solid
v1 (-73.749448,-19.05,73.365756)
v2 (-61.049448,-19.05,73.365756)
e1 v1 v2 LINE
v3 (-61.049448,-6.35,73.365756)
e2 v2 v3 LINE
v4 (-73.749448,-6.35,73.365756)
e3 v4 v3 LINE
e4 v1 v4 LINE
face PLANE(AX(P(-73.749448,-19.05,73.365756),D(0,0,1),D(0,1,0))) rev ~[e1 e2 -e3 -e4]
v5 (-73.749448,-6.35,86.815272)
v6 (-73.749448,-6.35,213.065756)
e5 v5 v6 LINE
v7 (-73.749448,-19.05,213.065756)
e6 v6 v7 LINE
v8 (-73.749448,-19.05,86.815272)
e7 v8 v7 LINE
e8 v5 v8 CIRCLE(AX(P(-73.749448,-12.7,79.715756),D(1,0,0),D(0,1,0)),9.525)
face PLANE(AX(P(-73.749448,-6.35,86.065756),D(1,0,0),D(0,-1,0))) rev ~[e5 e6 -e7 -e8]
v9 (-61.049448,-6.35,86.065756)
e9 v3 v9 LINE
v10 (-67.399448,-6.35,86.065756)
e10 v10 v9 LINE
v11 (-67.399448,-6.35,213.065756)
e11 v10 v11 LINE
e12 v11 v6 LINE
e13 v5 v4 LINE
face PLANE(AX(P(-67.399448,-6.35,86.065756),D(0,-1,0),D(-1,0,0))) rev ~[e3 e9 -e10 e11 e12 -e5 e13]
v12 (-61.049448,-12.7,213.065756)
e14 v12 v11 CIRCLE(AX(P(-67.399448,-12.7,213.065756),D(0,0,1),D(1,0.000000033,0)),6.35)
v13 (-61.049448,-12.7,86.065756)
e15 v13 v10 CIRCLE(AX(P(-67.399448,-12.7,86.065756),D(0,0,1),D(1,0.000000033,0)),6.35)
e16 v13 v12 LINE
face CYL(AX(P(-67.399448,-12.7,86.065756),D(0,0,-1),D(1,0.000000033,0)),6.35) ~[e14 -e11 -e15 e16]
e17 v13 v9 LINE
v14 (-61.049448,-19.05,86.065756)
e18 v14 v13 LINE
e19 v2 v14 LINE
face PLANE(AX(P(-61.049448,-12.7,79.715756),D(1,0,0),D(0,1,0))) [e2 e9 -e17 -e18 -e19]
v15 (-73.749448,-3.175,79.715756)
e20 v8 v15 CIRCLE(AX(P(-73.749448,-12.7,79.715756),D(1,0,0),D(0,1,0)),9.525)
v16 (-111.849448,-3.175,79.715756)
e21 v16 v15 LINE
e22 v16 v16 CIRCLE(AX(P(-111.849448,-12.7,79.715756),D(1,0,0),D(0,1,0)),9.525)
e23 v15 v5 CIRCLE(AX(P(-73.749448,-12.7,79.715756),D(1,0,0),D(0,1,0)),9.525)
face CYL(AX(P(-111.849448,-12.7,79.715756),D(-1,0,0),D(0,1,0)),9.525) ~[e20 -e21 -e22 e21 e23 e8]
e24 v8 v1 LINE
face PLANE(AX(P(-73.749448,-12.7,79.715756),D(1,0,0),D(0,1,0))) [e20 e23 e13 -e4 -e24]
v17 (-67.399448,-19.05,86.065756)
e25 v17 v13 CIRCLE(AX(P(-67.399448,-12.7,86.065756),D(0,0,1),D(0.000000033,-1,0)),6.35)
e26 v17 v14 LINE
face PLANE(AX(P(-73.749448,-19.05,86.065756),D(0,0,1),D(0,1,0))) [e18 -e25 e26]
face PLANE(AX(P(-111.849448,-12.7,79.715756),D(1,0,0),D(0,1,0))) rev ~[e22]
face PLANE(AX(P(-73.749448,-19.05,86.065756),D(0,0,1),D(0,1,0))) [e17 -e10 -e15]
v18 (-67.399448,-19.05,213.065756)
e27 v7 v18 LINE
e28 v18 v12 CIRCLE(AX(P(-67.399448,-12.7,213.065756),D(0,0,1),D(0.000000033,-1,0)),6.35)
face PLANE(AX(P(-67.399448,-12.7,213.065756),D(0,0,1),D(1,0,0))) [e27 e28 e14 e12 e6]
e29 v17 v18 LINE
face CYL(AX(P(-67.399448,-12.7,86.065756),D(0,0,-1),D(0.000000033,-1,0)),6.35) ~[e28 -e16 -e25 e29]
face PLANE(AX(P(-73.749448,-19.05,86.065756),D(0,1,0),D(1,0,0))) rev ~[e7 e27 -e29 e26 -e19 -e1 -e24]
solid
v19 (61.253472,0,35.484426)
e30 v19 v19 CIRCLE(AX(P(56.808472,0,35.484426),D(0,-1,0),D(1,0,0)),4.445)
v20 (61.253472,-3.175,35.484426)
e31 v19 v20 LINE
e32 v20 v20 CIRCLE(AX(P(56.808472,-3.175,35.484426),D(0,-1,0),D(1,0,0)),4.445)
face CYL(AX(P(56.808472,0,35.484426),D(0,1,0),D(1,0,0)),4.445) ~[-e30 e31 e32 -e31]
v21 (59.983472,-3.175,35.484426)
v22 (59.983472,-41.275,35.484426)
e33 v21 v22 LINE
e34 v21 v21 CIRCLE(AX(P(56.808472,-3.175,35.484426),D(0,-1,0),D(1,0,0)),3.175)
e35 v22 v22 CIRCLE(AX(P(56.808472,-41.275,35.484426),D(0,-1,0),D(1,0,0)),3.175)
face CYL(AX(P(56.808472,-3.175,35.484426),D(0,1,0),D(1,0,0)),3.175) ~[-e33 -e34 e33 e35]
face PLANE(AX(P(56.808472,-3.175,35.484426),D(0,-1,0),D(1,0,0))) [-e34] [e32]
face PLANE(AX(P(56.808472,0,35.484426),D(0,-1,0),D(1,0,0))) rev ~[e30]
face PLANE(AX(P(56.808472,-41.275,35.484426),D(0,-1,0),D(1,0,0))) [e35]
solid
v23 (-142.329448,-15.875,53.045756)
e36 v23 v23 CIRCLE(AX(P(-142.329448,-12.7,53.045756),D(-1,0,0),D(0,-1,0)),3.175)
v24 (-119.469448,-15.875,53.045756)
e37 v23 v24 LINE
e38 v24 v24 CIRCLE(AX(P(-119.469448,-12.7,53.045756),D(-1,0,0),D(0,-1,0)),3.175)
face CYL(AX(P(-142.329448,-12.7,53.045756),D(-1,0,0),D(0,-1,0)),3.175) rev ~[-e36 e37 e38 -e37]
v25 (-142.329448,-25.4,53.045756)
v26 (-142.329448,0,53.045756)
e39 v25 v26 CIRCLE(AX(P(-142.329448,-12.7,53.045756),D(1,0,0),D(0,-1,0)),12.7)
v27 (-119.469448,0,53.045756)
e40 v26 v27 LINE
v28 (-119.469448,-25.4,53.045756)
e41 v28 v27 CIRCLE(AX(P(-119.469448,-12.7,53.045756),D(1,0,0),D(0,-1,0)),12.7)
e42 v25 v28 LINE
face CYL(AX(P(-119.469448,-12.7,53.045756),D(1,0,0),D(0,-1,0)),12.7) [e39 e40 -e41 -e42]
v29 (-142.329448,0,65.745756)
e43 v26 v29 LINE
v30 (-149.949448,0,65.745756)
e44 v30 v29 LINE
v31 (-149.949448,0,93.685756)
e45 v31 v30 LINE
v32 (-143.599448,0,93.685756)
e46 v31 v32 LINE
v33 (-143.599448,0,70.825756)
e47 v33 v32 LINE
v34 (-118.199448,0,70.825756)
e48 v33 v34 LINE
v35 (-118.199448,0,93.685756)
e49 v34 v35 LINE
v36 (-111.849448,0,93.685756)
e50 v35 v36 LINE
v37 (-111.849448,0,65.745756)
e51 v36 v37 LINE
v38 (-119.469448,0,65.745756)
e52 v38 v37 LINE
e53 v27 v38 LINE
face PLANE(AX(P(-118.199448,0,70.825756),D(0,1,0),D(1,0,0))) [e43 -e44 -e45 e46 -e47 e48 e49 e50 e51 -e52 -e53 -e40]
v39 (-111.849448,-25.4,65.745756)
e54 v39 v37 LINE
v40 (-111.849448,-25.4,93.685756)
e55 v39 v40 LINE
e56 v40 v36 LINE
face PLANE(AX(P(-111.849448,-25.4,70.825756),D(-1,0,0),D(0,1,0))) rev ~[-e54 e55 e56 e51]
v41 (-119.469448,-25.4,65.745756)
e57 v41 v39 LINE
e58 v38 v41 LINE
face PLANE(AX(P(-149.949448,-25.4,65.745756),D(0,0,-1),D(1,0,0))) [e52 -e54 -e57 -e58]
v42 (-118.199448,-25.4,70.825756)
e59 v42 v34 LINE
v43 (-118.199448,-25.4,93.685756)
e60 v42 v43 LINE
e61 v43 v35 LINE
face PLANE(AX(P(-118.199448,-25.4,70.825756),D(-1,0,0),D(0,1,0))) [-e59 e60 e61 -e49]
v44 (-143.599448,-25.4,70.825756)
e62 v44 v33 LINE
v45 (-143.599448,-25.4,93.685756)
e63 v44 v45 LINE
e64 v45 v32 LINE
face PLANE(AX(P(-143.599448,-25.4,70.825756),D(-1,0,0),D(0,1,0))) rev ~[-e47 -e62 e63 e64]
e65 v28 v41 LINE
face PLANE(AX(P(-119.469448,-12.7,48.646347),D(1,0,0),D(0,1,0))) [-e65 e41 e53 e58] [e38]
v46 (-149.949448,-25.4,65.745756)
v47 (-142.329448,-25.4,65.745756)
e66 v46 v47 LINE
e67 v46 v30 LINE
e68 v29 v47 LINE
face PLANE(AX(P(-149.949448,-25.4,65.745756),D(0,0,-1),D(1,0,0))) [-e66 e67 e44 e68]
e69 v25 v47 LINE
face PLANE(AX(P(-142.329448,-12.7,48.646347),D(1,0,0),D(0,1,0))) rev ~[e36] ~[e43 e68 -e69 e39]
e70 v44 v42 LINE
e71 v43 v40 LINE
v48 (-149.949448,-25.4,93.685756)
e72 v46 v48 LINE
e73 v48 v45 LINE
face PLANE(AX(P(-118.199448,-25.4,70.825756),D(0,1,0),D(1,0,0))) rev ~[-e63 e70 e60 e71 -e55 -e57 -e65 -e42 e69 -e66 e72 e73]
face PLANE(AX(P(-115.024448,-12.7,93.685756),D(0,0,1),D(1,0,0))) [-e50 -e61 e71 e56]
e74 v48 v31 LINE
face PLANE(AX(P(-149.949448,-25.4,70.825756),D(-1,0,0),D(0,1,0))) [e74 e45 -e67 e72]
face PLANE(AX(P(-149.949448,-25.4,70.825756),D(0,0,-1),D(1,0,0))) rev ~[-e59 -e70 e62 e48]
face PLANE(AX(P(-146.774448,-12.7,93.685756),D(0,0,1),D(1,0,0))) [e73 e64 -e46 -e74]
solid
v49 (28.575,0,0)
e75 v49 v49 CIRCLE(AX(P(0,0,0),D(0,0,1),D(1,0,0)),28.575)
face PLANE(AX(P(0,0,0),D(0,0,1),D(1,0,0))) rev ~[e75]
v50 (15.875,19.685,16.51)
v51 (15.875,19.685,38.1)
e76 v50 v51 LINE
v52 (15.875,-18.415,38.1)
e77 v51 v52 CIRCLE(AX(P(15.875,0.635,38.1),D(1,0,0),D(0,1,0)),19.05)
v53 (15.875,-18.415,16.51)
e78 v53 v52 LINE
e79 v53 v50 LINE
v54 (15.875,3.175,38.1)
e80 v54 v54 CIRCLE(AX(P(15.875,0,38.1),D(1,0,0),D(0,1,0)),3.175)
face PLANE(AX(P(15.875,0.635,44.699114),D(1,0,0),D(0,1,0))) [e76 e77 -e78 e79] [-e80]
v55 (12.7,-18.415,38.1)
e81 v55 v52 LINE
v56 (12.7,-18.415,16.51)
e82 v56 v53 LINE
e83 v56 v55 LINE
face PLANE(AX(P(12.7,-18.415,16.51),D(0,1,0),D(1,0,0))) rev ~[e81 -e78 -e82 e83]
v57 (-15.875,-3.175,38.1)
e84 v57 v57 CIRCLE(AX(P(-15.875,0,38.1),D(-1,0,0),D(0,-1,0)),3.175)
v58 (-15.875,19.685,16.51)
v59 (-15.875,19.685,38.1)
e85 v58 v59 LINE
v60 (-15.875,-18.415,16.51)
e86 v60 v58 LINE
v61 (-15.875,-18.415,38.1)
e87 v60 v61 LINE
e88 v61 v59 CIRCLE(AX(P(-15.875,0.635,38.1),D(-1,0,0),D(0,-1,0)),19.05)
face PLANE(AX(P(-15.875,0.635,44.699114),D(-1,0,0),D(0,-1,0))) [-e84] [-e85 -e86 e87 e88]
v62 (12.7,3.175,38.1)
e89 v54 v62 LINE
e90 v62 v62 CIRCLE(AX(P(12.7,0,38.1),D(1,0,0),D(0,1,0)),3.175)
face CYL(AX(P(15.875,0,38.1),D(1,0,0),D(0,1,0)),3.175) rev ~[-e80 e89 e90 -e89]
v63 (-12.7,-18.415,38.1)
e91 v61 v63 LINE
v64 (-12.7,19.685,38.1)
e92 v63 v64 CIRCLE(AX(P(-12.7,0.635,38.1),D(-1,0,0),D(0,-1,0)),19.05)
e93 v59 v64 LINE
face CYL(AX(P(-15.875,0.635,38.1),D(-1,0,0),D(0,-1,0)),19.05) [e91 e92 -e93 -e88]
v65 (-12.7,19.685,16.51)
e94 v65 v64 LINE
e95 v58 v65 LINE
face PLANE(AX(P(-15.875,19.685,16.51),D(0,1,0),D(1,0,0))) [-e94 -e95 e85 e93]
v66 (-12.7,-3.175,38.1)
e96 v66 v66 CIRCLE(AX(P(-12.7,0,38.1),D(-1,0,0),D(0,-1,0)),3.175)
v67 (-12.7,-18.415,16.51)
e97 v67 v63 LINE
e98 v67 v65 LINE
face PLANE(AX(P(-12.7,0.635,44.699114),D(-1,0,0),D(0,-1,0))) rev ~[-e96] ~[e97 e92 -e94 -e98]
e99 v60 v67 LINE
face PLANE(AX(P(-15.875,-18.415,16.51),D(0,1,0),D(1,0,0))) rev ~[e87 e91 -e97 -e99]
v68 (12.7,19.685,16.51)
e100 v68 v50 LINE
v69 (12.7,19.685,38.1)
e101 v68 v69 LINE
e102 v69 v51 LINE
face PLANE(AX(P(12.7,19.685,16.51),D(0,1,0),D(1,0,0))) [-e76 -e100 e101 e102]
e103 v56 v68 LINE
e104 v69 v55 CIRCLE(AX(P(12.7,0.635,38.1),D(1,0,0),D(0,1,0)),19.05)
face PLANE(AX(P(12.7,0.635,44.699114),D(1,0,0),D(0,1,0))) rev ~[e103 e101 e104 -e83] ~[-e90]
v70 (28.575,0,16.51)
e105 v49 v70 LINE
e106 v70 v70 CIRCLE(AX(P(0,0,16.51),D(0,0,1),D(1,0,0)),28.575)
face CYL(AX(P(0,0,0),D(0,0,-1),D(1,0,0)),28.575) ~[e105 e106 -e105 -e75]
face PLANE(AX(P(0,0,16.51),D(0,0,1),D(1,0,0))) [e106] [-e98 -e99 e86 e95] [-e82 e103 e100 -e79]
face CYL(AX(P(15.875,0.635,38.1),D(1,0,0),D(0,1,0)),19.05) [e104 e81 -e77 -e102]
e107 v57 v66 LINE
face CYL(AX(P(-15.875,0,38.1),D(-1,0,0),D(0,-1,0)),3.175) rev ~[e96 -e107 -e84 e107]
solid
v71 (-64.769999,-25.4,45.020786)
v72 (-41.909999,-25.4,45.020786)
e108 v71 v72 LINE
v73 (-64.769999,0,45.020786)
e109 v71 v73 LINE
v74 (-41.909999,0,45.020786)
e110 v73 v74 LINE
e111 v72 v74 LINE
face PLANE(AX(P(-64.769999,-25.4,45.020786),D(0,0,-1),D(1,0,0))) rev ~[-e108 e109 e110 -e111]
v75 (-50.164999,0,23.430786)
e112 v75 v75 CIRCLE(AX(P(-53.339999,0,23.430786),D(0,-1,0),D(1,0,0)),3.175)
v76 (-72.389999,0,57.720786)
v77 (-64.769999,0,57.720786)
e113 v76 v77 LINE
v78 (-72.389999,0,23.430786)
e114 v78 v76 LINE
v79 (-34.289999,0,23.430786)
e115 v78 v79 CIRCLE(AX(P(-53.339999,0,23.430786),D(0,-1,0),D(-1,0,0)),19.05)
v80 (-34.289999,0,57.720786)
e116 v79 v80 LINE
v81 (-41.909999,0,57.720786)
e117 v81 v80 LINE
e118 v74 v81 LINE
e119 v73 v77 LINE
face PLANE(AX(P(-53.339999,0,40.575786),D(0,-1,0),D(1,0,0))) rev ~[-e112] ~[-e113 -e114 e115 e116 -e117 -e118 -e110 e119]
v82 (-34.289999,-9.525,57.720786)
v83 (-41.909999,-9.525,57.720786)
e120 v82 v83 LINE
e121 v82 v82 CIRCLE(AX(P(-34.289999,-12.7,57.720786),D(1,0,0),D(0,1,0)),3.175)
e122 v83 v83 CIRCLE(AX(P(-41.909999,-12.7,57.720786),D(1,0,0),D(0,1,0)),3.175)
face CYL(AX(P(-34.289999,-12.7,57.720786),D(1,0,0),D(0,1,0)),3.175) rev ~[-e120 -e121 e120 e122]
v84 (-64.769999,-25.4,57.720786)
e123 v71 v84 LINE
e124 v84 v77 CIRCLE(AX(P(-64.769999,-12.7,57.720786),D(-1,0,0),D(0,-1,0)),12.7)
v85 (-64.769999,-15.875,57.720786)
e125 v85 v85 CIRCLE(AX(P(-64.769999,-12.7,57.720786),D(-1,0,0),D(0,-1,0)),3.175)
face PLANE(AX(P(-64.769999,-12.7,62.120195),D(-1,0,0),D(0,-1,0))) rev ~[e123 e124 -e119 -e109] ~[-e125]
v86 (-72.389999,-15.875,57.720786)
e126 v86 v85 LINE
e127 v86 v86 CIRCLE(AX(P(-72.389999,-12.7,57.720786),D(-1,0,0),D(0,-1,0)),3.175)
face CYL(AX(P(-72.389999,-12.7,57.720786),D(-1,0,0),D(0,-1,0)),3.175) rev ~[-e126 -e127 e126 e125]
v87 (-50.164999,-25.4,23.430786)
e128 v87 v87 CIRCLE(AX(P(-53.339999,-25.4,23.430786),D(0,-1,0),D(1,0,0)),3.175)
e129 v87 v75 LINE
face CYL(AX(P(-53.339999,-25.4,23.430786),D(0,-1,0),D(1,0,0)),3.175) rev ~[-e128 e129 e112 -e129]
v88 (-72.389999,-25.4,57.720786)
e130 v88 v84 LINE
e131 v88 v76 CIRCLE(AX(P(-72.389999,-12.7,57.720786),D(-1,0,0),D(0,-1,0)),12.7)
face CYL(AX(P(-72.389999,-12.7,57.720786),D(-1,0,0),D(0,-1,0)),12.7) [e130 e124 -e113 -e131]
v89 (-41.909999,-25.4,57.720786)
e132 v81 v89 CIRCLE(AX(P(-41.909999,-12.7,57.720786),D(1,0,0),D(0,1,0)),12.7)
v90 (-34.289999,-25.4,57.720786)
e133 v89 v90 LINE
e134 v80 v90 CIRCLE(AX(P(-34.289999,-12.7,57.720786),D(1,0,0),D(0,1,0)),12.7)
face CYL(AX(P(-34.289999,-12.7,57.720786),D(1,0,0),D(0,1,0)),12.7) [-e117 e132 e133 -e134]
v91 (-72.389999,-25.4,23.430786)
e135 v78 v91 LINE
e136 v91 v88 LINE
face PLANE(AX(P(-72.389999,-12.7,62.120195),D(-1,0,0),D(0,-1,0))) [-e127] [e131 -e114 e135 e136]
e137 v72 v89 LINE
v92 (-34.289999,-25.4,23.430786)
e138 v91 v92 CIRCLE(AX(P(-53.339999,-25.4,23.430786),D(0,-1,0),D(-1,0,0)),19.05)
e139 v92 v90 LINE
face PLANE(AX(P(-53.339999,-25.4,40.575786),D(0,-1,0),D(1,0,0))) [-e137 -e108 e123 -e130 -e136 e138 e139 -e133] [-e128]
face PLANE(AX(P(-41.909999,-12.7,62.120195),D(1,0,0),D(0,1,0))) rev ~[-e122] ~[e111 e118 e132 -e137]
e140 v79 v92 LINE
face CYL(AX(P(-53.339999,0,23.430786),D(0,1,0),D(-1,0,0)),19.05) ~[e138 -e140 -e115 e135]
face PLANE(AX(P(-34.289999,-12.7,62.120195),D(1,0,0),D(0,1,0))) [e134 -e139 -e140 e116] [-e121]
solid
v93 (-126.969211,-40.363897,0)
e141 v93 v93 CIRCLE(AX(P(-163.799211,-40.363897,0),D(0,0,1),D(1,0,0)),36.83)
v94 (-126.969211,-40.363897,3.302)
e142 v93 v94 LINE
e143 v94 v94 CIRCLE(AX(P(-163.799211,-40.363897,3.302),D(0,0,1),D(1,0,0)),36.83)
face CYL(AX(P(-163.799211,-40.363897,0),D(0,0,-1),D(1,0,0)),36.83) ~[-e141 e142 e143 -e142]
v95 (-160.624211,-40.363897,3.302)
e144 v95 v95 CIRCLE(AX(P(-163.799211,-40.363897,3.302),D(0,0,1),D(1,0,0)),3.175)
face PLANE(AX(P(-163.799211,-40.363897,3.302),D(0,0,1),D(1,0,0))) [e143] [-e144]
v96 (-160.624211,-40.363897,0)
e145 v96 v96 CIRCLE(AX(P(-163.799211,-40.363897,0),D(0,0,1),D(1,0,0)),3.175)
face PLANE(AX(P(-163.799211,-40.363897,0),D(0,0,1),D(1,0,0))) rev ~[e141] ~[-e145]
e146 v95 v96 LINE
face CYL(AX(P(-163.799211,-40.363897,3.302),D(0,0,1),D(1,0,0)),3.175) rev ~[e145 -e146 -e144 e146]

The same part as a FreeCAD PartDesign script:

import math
import FreeCAD as App
import Part
import Sketcher
Q = App.Units.Quantity


def add_polygon(sketch, points):
    """Adds a closed chain of lines whose ends are joined by coincident constraints."""
    first, n = sketch.GeometryCount, len(points)
    for a, b in zip(points, points[1:] + points[:1]):
        sketch.addGeometry(Part.LineSegment(App.Vector(*a, 0), App.Vector(*b, 0)), False)
    for i in range(n):
        sketch.addConstraint(Sketcher.Constraint("Coincident", first + i, 2, first + (i + 1) % n, 1))

doc = App.newDocument("Part")
params = doc.addObject("Spreadsheet::Sheet", "Params")
for row, (alias, value) in enumerate([
    ("sketch1_diameter", "2.25 in"),
    ("pad1_length", "0.65 in"),
    ("sketch2_height", "1.5 in"),
    ("sketch2_width", "0.125 in"),
    ("pad2_length", "0.85 in"),
    ("sketch3_radius", "0.75 in"),
    ("pad3_length", "0.125 in"),
    ("sketch4_radius", "0.75 in"),
    ("pad4_length", "0.125 in"),
    ("sketch5_diameter", "0.25 in"),
    ("pocket1_length", "1 in"),
    ("sketch6_diameter", "0.25 in"),
    ("pocket2_length", "1 in"),
    ("sketch7_radius", "0.75 in"),
    ("sketch7_height", "1.35 in"),
    ("pad5_length", "1 in"),
    ("sketch8_diameter", "0.25 in"),
    ("pocket3_length", "1 in"),
    ("sketch9_width", "0.9 in"),
    ("sketch9_height", "0.5 in"),
    ("pocket4_length", "1 in"),
    ("sketch10_radius", "0.5 in"),
    ("pad6_length", "0.3 in"),
    ("sketch11_radius", "0.5 in"),
    ("pad7_length", "0.3 in"),
    ("sketch12_diameter", "0.25 in"),
    ("pocket5_length", "0.5 in"),
    ("sketch13_diameter", "0.25 in"),
    ("pocket6_length", "1 in"),
    ("sketch14_width", "0.9 in"),
    ("sketch14_height", "0.5 in"),
    ("pad8_length", "1 in"),
    ("sketch15_radius", "0.5 in"),
    ("pad9_length", "0.9 in"),
    ("sketch16_diameter", "0.25 in"),
    ("pocket7_length", "1 in"),
    ("sketch17_width", "1.5 in"),
    ("sketch17_height", "0.2 in"),
    ("pad10_length", "1 in"),
    ("sketch18_height", "1 in"),
    ("sketch18_width", "0.25 in"),
    ("pad11_length", "0.9 in"),
    ("sketch19_height", "1 in"),
    ("sketch19_width", "0.25 in"),
    ("pad12_length", "0.9 in"),
    ("sketch20_diameter", "2.9 in"),
    ("pad13_length", "0.13 in"),
    ("sketch21_diameter", "0.25 in"),
    ("pocket8_length", "1 in"),
    ("sketch22_diameter", "0.35 in"),
    ("pad14_length", "0.125 in"),
    ("sketch23_diameter", "0.25 in"),
    ("pad15_length", "1.5 in"),
    ("sketch24_diameter", "0.75 in"),
    ("pad16_length", "1.5 in"),
    ("sketch25_width", "0.5 in"),
    ("pad17_length", "0.5 in"),
    ("sketch26_radius", "0.25 in"),
    ("sketch26_width", "0.25 in"),
    ("pad18_length", "5 in"),
], start=1):
    params.set(f"A{row}", alias)
    params.set(f"B{row}", "=" + value)
    params.setAlias(f"B{row}", alias)

body = doc.addObject("PartDesign::Body", "Body")

# Sketch on XY plane
sketch1 = doc.addObject("Sketcher::SketchObject", "Sketch")
body.addObject(sketch1)
sketch1.AttachmentSupport = (doc.XY_Plane, [""])
sketch1.MapMode = "FlatFace"
sketch1.addGeometry(Part.Circle(App.Vector(0, 0, 0), App.Vector(0, 0, 1), 29), False)
sketch1.addConstraint([
    Sketcher.Constraint("Coincident", 0, 3, -1, 1),
    Sketcher.Constraint("Diameter", 0, Q("2.25 in")),
])
sketch1.setExpression("Constraints[1]", "Params.sketch1_diameter")
pad1 = doc.addObject("PartDesign::Pad", "Pad")
body.addObject(pad1)
pad1.Profile = sketch1
pad1.setExpression("Length", "Params.pad1_length")

# Sketch on XY plane
sketch2 = doc.addObject("Sketcher::SketchObject", "Sketch001")
body.addObject(sketch2)
sketch2.AttachmentSupport = (doc.XY_Plane, [""])
sketch2.MapMode = "FlatFace"
sketch2.AttachmentOffset = App.Placement(App.Vector(0, 0, 0.65 * 25.4), App.Rotation())
add_polygon(sketch2, [(-15.9, 19.7), (-15.9, -18.4), (-12.7, -18.4), (-12.7, 19.7)])  # lines 0-3
add_polygon(sketch2, [(12.7, 19.7), (12.7, -18.4), (15.9, -18.4), (15.9, 19.7)])  # lines 4-7
sketch2.addConstraint([
    Sketcher.Constraint("Vertical", 0),
    Sketcher.Constraint("Horizontal", 1),
    Sketcher.Constraint("Vertical", 2),
    Sketcher.Constraint("Horizontal", 3),
    Sketcher.Constraint("Vertical", 4),
    Sketcher.Constraint("Horizontal", 5),
    Sketcher.Constraint("Vertical", 6),
    Sketcher.Constraint("Horizontal", 7),
    Sketcher.Constraint("Symmetric", 1, 2, 4, 2, -2),
    Sketcher.Constraint("Symmetric", 3, 2, 6, 2, -2),
    Sketcher.Constraint("DistanceY", 0, 2, 0, 1, Q("1.5 in")),
    Sketcher.Constraint("DistanceX", 1, 2, 4, 2, Q("1 in")),
    Sketcher.Constraint("DistanceX", 1, 1, 1, 2, Q("0.125 in")),
    Sketcher.Constraint("DistanceY", 0, 2, -1, 1, Q("0.725 in")),
])
sketch2.setExpression("Constraints[18]", "Params.sketch2_height")
sketch2.setExpression("Constraints[20]", "Params.sketch2_width")
pad2 = doc.addObject("PartDesign::Pad", "Pad001")
body.addObject(pad2)
pad2.Profile = sketch2
pad2.setExpression("Length", "Params.pad2_length")

# Sketch on YZ plane
sketch3 = doc.addObject("Sketcher::SketchObject", "Sketch002")
body.addObject(sketch3)
sketch3.AttachmentSupport = (doc.YZ_Plane, [""])
sketch3.MapMode = "FlatFace"
sketch3.AttachmentOffset = App.Placement(App.Vector(0, 0, -0.625 * 25.4), App.Rotation())
sketch3.addGeometry([
    Part.LineSegment(App.Vector(20, 38, 0), App.Vector(-18, 38, 0)),
    Part.ArcOfCircle(Part.Circle(App.Vector(1, 38, 0), App.Vector(0, 0, 1), 19), math.radians(0), math.radians(180)),
], False)
sketch3.addConstraint([
    Sketcher.Constraint("Coincident", 0, 1, 1, 1),
    Sketcher.Constraint("Coincident", 1, 2, 0, 2),
    Sketcher.Constraint("Horizontal", 0),
    Sketcher.Constraint("Horizontal", 1, 3, 0, 1),
    Sketcher.Constraint("Radius", 1, Q("0.75 in")),
    Sketcher.Constraint("DistanceY", -1, 1, 1, 3, Q("1.5 in")),
    Sketcher.Constraint("DistanceX", -1, 1, 1, 3, Q("0.025 in")),
])
sketch3.setExpression("Constraints[4]", "Params.sketch3_radius")
pad3 = doc.addObject("PartDesign::Pad", "Pad002")
body.addObject(pad3)
pad3.Profile = sketch3
pad3.setExpression("Length", "Params.pad3_length")

# Sketch on YZ plane
sketch4 = doc.addObject("Sketcher::SketchObject", "Sketch003")
body.addObject(sketch4)
sketch4.AttachmentSupport = (doc.YZ_Plane, [""])
sketch4.MapMode = "FlatFace"
sketch4.AttachmentOffset = App.Placement(App.Vector(0, 0, 0.625 * 25.4), App.Rotation())
sketch4.addGeometry([
    Part.LineSegment(App.Vector(-18, 38, 0), App.Vector(20, 38, 0)),
    Part.ArcOfCircle(Part.Circle(App.Vector(1, 38, 0), App.Vector(0, 0, 1), 19), math.radians(0), math.radians(180)),
], False)
sketch4.addConstraint([
    Sketcher.Constraint("Coincident", 0, 1, 1, 2),
    Sketcher.Constraint("Coincident", 1, 1, 0, 2),
    Sketcher.Constraint("Horizontal", 0),
    Sketcher.Constraint("Horizontal", 1, 3, 0, 1),
    Sketcher.Constraint("Radius", 1, Q("0.75 in")),
    Sketcher.Constraint("DistanceY", -1, 1, 1, 3, Q("1.5 in")),
    Sketcher.Constraint("DistanceX", -1, 1, 1, 3, Q("0.025 in")),
])
sketch4.setExpression("Constraints[4]", "Params.sketch4_radius")
pad4 = doc.addObject("PartDesign::Pad", "Pad003")
body.addObject(pad4)
pad4.Profile = sketch4
pad4.setExpression("Length", "Params.pad4_length")
pad4.Reversed = True

# Sketch on YZ plane
sketch5 = doc.addObject("Sketcher::SketchObject", "Sketch004")
body.addObject(sketch5)
sketch5.AttachmentSupport = (doc.YZ_Plane, [""])
sketch5.MapMode = "FlatFace"
sketch5.AttachmentOffset = App.Placement(App.Vector(0, 0, -0.625 * 25.4), App.Rotation())
sketch5.addGeometry(Part.Circle(App.Vector(0, 38.1, 0), App.Vector(0, 0, 1), 3.2), False)
sketch5.addConstraint([
    Sketcher.Constraint("PointOnObject", 0, 3, -2),
    Sketcher.Constraint("Diameter", 0, Q("0.25 in")),
    Sketcher.Constraint("DistanceY", -1, 1, 0, 3, Q("1.5 in")),
])
sketch5.setExpression("Constraints[1]", "Params.sketch5_diameter")
pocket1 = doc.addObject("PartDesign::Pocket", "Pocket")
body.addObject(pocket1)
pocket1.Profile = sketch5
pocket1.setExpression("Length", "Params.pocket1_length")
pocket1.Reversed = True

# Sketch on YZ plane
sketch6 = doc.addObject("Sketcher::SketchObject", "Sketch005")
body.addObject(sketch6)
sketch6.AttachmentSupport = (doc.YZ_Plane, [""])
sketch6.MapMode = "FlatFace"
sketch6.AttachmentOffset = App.Placement(App.Vector(0, 0, 0.625 * 25.4), App.Rotation())
sketch6.addGeometry(Part.Circle(App.Vector(0, 38.1, 0), App.Vector(0, 0, 1), 3.2), False)
sketch6.addConstraint([
    Sketcher.Constraint("PointOnObject", 0, 3, -2),
    Sketcher.Constraint("Diameter", 0, Q("0.25 in")),
    Sketcher.Constraint("DistanceY", -1, 1, 0, 3, Q("1.5 in")),
])
sketch6.setExpression("Constraints[1]", "Params.sketch6_diameter")
pocket2 = doc.addObject("PartDesign::Pocket", "Pocket001")
body.addObject(pocket2)
pocket2.Profile = sketch6
pocket2.setExpression("Length", "Params.pocket2_length")
body2 = doc.addObject("PartDesign::Body", "Body001")

# Sketch on XZ plane
sketch7 = doc.addObject("Sketcher::SketchObject", "Sketch006")
body2.addObject(sketch7)
sketch7.AttachmentSupport = (doc.getObject("XZ_Plane001"), [""])
sketch7.MapMode = "FlatFace"
sketch7.addGeometry([
    Part.LineSegment(App.Vector(-72, 58, 0), App.Vector(-72, 23, 0)),
    Part.ArcOfCircle(Part.Circle(App.Vector(-53, 23, 0), App.Vector(0, 0, 1), 19), math.radians(180), math.radians(360)),
    Part.LineSegment(App.Vector(-34, 23, 0), App.Vector(-34, 58, 0)),
    Part.LineSegment(App.Vector(-34, 58, 0), App.Vector(-72, 58, 0)),
], False)
sketch7.addConstraint([
    Sketcher.Constraint("Tangent", 0, 2, 1, 1),
    Sketcher.Constraint("Tangent", 1, 2, 2, 1),
    Sketcher.Constraint("Coincident", 2, 2, 3, 1),
    Sketcher.Constraint("Coincident", 3, 2, 0, 1),
    Sketcher.Constraint("Vertical", 0),
    Sketcher.Constraint("Vertical", 2),
    Sketcher.Constraint("Horizontal", 3),
    Sketcher.Constraint("Radius", 1, Q("0.75 in")),
    Sketcher.Constraint("DistanceY", 0, 2, 0, 1, Q("1.35 in")),
    Sketcher.Constraint("DistanceX", 1, 3, -1, 1, Q("2.1 in")),
    Sketcher.Constraint("DistanceY", -1, 1, 1, 3, Q("23.430786 mm")),
])
sketch7.setExpression("Constraints[7]", "Params.sketch7_radius")
sketch7.setExpression("Constraints[8]", "Params.sketch7_height")
pad5 = doc.addObject("PartDesign::Pad", "Pad004")
body2.addObject(pad5)
pad5.Profile = sketch7
pad5.setExpression("Length", "Params.pad5_length")

# Sketch on XZ plane
sketch8 = doc.addObject("Sketcher::SketchObject", "Sketch007")
body2.addObject(sketch8)
sketch8.AttachmentSupport = (doc.getObject("XZ_Plane001"), [""])
sketch8.MapMode = "FlatFace"
sketch8.AttachmentOffset = App.Placement(App.Vector(0, 0, 1 * 25.4), App.Rotation())
sketch8.addGeometry(Part.Circle(App.Vector(-53.3, 23.4, 0), App.Vector(0, 0, 1), 3.2), False)
sketch8.addConstraint([
    Sketcher.Constraint("Diameter", 0, Q("0.25 in")),
    Sketcher.Constraint("DistanceX", 0, 3, -1, 1, Q("2.1 in")),
    Sketcher.Constraint("DistanceY", -1, 1, 0, 3, Q("23.430786 mm")),
])
sketch8.setExpression("Constraints[0]", "Params.sketch8_diameter")
pocket3 = doc.addObject("PartDesign::Pocket", "Pocket002")
body2.addObject(pocket3)
pocket3.Profile = sketch8
pocket3.setExpression("Length", "Params.pocket3_length")

# Sketch on XZ plane
sketch9 = doc.addObject("Sketcher::SketchObject", "Sketch008")
body2.addObject(sketch9)
sketch9.AttachmentSupport = (doc.getObject("XZ_Plane001"), [""])
sketch9.MapMode = "FlatFace"
sketch9.AttachmentOffset = App.Placement(App.Vector(0, 0, 1 * 25.4), App.Rotation())
add_polygon(sketch9, [(-65, 58), (-65, 45), (-42, 45), (-42, 58)])  # lines 0-3
sketch9.addConstraint([
    Sketcher.Constraint("Vertical", 0),
    Sketcher.Constraint("Horizontal", 1),
    Sketcher.Constraint("Vertical", 2),
    Sketcher.Constraint("Horizontal", 3),
    Sketcher.Constraint("DistanceX", 1, 1, 1, 2, Q("0.9 in")),
    Sketcher.Constraint("DistanceY", 0, 2, 0, 1, Q("0.5 in")),
    Sketcher.Constraint("DistanceX", 0, 2, -1, 1, Q("2.55 in")),
    Sketcher.Constraint("DistanceY", -1, 1, 0, 2, Q("45.020786 mm")),
])
sketch9.setExpression("Constraints[8]", "Params.sketch9_width")
sketch9.setExpression("Constraints[9]", "Params.sketch9_height")
pocket4 = doc.addObject("PartDesign::Pocket", "Pocket003")
body2.addObject(pocket4)
pocket4.Profile = sketch9
pocket4.setExpression("Length", "Params.pocket4_length")

# Sketch on YZ plane
sketch10 = doc.addObject("Sketcher::SketchObject", "Sketch009")
body2.addObject(sketch10)
sketch10.AttachmentSupport = (doc.getObject("YZ_Plane001"), [""])
sketch10.MapMode = "FlatFace"
sketch10.AttachmentOffset = App.Placement(App.Vector(0, 0, -2.85 * 25.4), App.Rotation())
sketch10.addGeometry([
    Part.LineSegment(App.Vector(0, 58, 0), App.Vector(-25, 58, 0)),
    Part.ArcOfCircle(Part.Circle(App.Vector(-13, 58, 0), App.Vector(0, 0, 1), 13), math.radians(0), math.radians(180)),
], False)
sketch10.addConstraint([
    Sketcher.Constraint("Coincident", 0, 1, 1, 1),
    Sketcher.Constraint("Coincident", 1, 2, 0, 2),
    Sketcher.Constraint("Horizontal", 0),
    Sketcher.Constraint("PointOnObject", 0, 1, -2),
    Sketcher.Constraint("Horizontal", 1, 3, 0, 1),
    Sketcher.Constraint("Radius", 1, Q("0.5 in")),
    Sketcher.Constraint("DistanceY", -1, 1, 1, 3, Q("57.720786 mm")),
])
sketch10.setExpression("Constraints[5]", "Params.sketch10_radius")
pad6 = doc.addObject("PartDesign::Pad", "Pad005")
body2.addObject(pad6)
pad6.Profile = sketch10
pad6.setExpression("Length", "Params.pad6_length")

# Sketch on YZ plane
sketch11 = doc.addObject("Sketcher::SketchObject", "Sketch010")
body2.addObject(sketch11)
sketch11.AttachmentSupport = (doc.getObject("YZ_Plane001"), [""])
sketch11.MapMode = "FlatFace"
sketch11.AttachmentOffset = App.Placement(App.Vector(0, 0, -1.35 * 25.4), App.Rotation())
sketch11.addGeometry([
    Part.LineSegment(App.Vector(-25, 58, 0), App.Vector(0, 58, 0)),
    Part.ArcOfCircle(Part.Circle(App.Vector(-13, 58, 0), App.Vector(0, 0, 1), 13), math.radians(0), math.radians(180)),
], False)
sketch11.addConstraint([
    Sketcher.Constraint("Coincident", 0, 1, 1, 2),
    Sketcher.Constraint("Coincident", 1, 1, 0, 2),
    Sketcher.Constraint("Horizontal", 0),
    Sketcher.Constraint("PointOnObject", 1, 1, -2),
    Sketcher.Constraint("Horizontal", 1, 3, 0, 1),
    Sketcher.Constraint("Radius", 1, Q("0.5 in")),
    Sketcher.Constraint("DistanceY", -1, 1, 1, 3, Q("57.720786 mm")),
])
sketch11.setExpression("Constraints[5]", "Params.sketch11_radius")
pad7 = doc.addObject("PartDesign::Pad", "Pad006")
body2.addObject(pad7)
pad7.Profile = sketch11
pad7.setExpression("Length", "Params.pad7_length")
pad7.Reversed = True

# Sketch on YZ plane
sketch12 = doc.addObject("Sketcher::SketchObject", "Sketch011")
body2.addObject(sketch12)
sketch12.AttachmentSupport = (doc.getObject("YZ_Plane001"), [""])
sketch12.MapMode = "FlatFace"
sketch12.AttachmentOffset = App.Placement(App.Vector(0, 0, -2.85 * 25.4), App.Rotation())
sketch12.addGeometry(Part.Circle(App.Vector(-12.7, 57.7, 0), App.Vector(0, 0, 1), 3.2), False)
sketch12.addConstraint([
    Sketcher.Constraint("Diameter", 0, Q("0.25 in")),
    Sketcher.Constraint("DistanceX", 0, 3, -1, 1, Q("0.5 in")),
    Sketcher.Constraint("DistanceY", -1, 1, 0, 3, Q("57.720786 mm")),
])
sketch12.setExpression("Constraints[0]", "Params.sketch12_diameter")
pocket5 = doc.addObject("PartDesign::Pocket", "Pocket004")
body2.addObject(pocket5)
pocket5.Profile = sketch12
pocket5.setExpression("Length", "Params.pocket5_length")
pocket5.Reversed = True

# Sketch on YZ plane
sketch13 = doc.addObject("Sketcher::SketchObject", "Sketch012")
body2.addObject(sketch13)
sketch13.AttachmentSupport = (doc.getObject("YZ_Plane001"), [""])
sketch13.MapMode = "FlatFace"
sketch13.AttachmentOffset = App.Placement(App.Vector(0, 0, -1.35 * 25.4), App.Rotation())
sketch13.addGeometry(Part.Circle(App.Vector(-12.7, 57.7, 0), App.Vector(0, 0, 1), 3.2), False)
sketch13.addConstraint([
    Sketcher.Constraint("Diameter", 0, Q("0.25 in")),
    Sketcher.Constraint("DistanceX", 0, 3, -1, 1, Q("0.5 in")),
    Sketcher.Constraint("DistanceY", -1, 1, 0, 3, Q("57.720786 mm")),
])
sketch13.setExpression("Constraints[0]", "Params.sketch13_diameter")
pocket6 = doc.addObject("PartDesign::Pocket", "Pocket005")
body2.addObject(pocket6)
pocket6.Profile = sketch13
pocket6.setExpression("Length", "Params.pocket6_length")
body3 = doc.addObject("PartDesign::Body", "Body002")

# Sketch on XZ plane
sketch14 = doc.addObject("Sketcher::SketchObject", "Sketch013")
body3.addObject(sketch14)
sketch14.AttachmentSupport = (doc.getObject("XZ_Plane002"), [""])
sketch14.MapMode = "FlatFace"
add_polygon(sketch14, [(-142, 66), (-142, 53), (-119, 53), (-119, 66)])  # lines 0-3
sketch14.addConstraint([
    Sketcher.Constraint("Vertical", 0),
    Sketcher.Constraint("Horizontal", 1),
    Sketcher.Constraint("Vertical", 2),
    Sketcher.Constraint("Horizontal", 3),
    Sketcher.Constraint("DistanceX", 1, 1, 1, 2, Q("0.9 in")),
    Sketcher.Constraint("DistanceY", 0, 2, 0, 1, Q("0.5 in")),
    Sketcher.Constraint("DistanceX", 0, 2, -1, 1, Q("142.329448 mm")),
    Sketcher.Constraint("DistanceY", -1, 1, 0, 2, Q("53.045756 mm")),
])
sketch14.setExpression("Constraints[8]", "Params.sketch14_width")
sketch14.setExpression("Constraints[9]", "Params.sketch14_height")
pad8 = doc.addObject("PartDesign::Pad", "Pad007")
body3.addObject(pad8)
pad8.Profile = sketch14
pad8.setExpression("Length", "Params.pad8_length")

# Sketch on YZ plane
sketch15 = doc.addObject("Sketcher::SketchObject", "Sketch014")
body3.addObject(sketch15)
sketch15.AttachmentSupport = (doc.getObject("YZ_Plane002"), [""])
sketch15.MapMode = "FlatFace"
sketch15.AttachmentOffset = App.Placement(App.Vector(0, 0, -119.469448), App.Rotation())
sketch15.addGeometry([
    Part.LineSegment(App.Vector(0, 53, 0), App.Vector(-25, 53, 0)),
    Part.ArcOfCircle(Part.Circle(App.Vector(-13, 53, 0), App.Vector(0, 0, 1), 13), math.radians(180), math.radians(360)),
], False)
sketch15.addConstraint([
    Sketcher.Constraint("Coincident", 0, 1, 1, 2),
    Sketcher.Constraint("Coincident", 1, 1, 0, 2),
    Sketcher.Constraint("Horizontal", 0),
    Sketcher.Constraint("PointOnObject", 0, 1, -2),
    Sketcher.Constraint("Horizontal", 1, 3, 0, 1),
    Sketcher.Constraint("Radius", 1, Q("0.5 in")),
    Sketcher.Constraint("DistanceY", -1, 1, 1, 3, Q("53.045756 mm")),
])
sketch15.setExpression("Constraints[5]", "Params.sketch15_radius")
pad9 = doc.addObject("PartDesign::Pad", "Pad008")
body3.addObject(pad9)
pad9.Profile = sketch15
pad9.setExpression("Length", "Params.pad9_length")
pad9.Reversed = True

# Sketch on YZ plane
sketch16 = doc.addObject("Sketcher::SketchObject", "Sketch015")
body3.addObject(sketch16)
sketch16.AttachmentSupport = (doc.getObject("YZ_Plane002"), [""])
sketch16.MapMode = "FlatFace"
sketch16.AttachmentOffset = App.Placement(App.Vector(0, 0, -142.329448), App.Rotation())
sketch16.addGeometry(Part.Circle(App.Vector(-12.7, 53, 0), App.Vector(0, 0, 1), 3.2), False)
sketch16.addConstraint([
    Sketcher.Constraint("Diameter", 0, Q("0.25 in")),
    Sketcher.Constraint("DistanceX", 0, 3, -1, 1, Q("0.5 in")),
    Sketcher.Constraint("DistanceY", -1, 1, 0, 3, Q("53.045756 mm")),
])
sketch16.setExpression("Constraints[0]", "Params.sketch16_diameter")
pocket7 = doc.addObject("PartDesign::Pocket", "Pocket006")
body3.addObject(pocket7)
pocket7.Profile = sketch16
pocket7.setExpression("Length", "Params.pocket7_length")
pocket7.Reversed = True

# Sketch on XZ plane
sketch17 = doc.addObject("Sketcher::SketchObject", "Sketch016")
body3.addObject(sketch17)
sketch17.AttachmentSupport = (doc.getObject("XZ_Plane002"), [""])
sketch17.MapMode = "FlatFace"
sketch17.AttachmentOffset = App.Placement(App.Vector(0, 0, 1 * 25.4), App.Rotation())
add_polygon(sketch17, [(-150, 71), (-150, 66), (-112, 66), (-112, 71)])  # lines 0-3
sketch17.addConstraint([
    Sketcher.Constraint("Vertical", 0),
    Sketcher.Constraint("Horizontal", 1),
    Sketcher.Constraint("Vertical", 2),
    Sketcher.Constraint("Horizontal", 3),
    Sketcher.Constraint("DistanceX", 1, 1, 1, 2, Q("1.5 in")),
    Sketcher.Constraint("DistanceY", 0, 2, 0, 1, Q("0.2 in")),
    Sketcher.Constraint("DistanceX", 0, 2, -1, 1, Q("149.949448 mm")),
    Sketcher.Constraint("DistanceY", -1, 1, 0, 2, Q("65.745756 mm")),
])
sketch17.setExpression("Constraints[8]", "Params.sketch17_width")
sketch17.setExpression("Constraints[9]", "Params.sketch17_height")
pad10 = doc.addObject("PartDesign::Pad", "Pad009")
body3.addObject(pad10)
pad10.Profile = sketch17
pad10.setExpression("Length", "Params.pad10_length")
pad10.Reversed = True

# Sketch on XY plane
sketch18 = doc.addObject("Sketcher::SketchObject", "Sketch017")
body3.addObject(sketch18)
sketch18.AttachmentSupport = (doc.getObject("XY_Plane002"), [""])
sketch18.MapMode = "FlatFace"
sketch18.AttachmentOffset = App.Placement(App.Vector(0, 0, 70.825756), App.Rotation())
add_polygon(sketch18, [(-150, 0), (-150, -25), (-144, -25), (-144, 0)])  # lines 0-3
sketch18.addConstraint([
    Sketcher.Constraint("Vertical", 0),
    Sketcher.Constraint("Horizontal", 1),
    Sketcher.Constraint("Vertical", 2),
    Sketcher.Constraint("Horizontal", 3),
    Sketcher.Constraint("PointOnObject", 2, 2, -1),
    Sketcher.Constraint("DistanceY", 0, 2, 0, 1, Q("1 in")),
    Sketcher.Constraint("DistanceX", 1, 1, 1, 2, Q("0.25 in")),
    Sketcher.Constraint("DistanceX", 1, 2, -1, 1, Q("143.599448 mm")),
])
sketch18.setExpression("Constraints[9]", "Params.sketch18_height")
sketch18.setExpression("Constraints[10]", "Params.sketch18_width")
pad11 = doc.addObject("PartDesign::Pad", "Pad010")
body3.addObject(pad11)
pad11.Profile = sketch18
pad11.setExpression("Length", "Params.pad11_length")

# Sketch on XY plane
sketch19 = doc.addObject("Sketcher::SketchObject", "Sketch018")
body3.addObject(sketch19)
sketch19.AttachmentSupport = (doc.getObject("XY_Plane002"), [""])
sketch19.MapMode = "FlatFace"
sketch19.AttachmentOffset = App.Placement(App.Vector(0, 0, 70.825756), App.Rotation())
add_polygon(sketch19, [(-118, 0), (-118, -25), (-112, -25), (-112, 0)])  # lines 0-3
sketch19.addConstraint([
    Sketcher.Constraint("Vertical", 0),
    Sketcher.Constraint("Horizontal", 1),
    Sketcher.Constraint("Vertical", 2),
    Sketcher.Constraint("Horizontal", 3),
    Sketcher.Constraint("PointOnObject", 2, 2, -1),
    Sketcher.Constraint("DistanceY", 0, 2, 0, 1, Q("1 in")),
    Sketcher.Constraint("DistanceX", 1, 1, 1, 2, Q("0.25 in")),
    Sketcher.Constraint("DistanceX", 0, 2, -1, 1, Q("118.199448 mm")),
])
sketch19.setExpression("Constraints[9]", "Params.sketch19_height")
sketch19.setExpression("Constraints[10]", "Params.sketch19_width")
pad12 = doc.addObject("PartDesign::Pad", "Pad011")
body3.addObject(pad12)
pad12.Profile = sketch19
pad12.setExpression("Length", "Params.pad12_length")
body4 = doc.addObject("PartDesign::Body", "Body003")

# Sketch on XY plane
sketch20 = doc.addObject("Sketcher::SketchObject", "Sketch019")
body4.addObject(sketch20)
sketch20.AttachmentSupport = (doc.getObject("XY_Plane003"), [""])
sketch20.MapMode = "FlatFace"
sketch20.addGeometry(Part.Circle(App.Vector(-164, -40, 0), App.Vector(0, 0, 1), 37), False)
sketch20.addConstraint([
    Sketcher.Constraint("Diameter", 0, Q("2.9 in")),
    Sketcher.Constraint("DistanceX", 0, 3, -1, 1, Q("163.799211 mm")),
    Sketcher.Constraint("DistanceY", 0, 3, -1, 1, Q("40.363897 mm")),
])
sketch20.setExpression("Constraints[0]", "Params.sketch20_diameter")
pad13 = doc.addObject("PartDesign::Pad", "Pad012")
body4.addObject(pad13)
pad13.Profile = sketch20
pad13.setExpression("Length", "Params.pad13_length")

# Sketch on XY plane
sketch21 = doc.addObject("Sketcher::SketchObject", "Sketch020")
body4.addObject(sketch21)
sketch21.AttachmentSupport = (doc.getObject("XY_Plane003"), [""])
sketch21.MapMode = "FlatFace"
sketch21.AttachmentOffset = App.Placement(App.Vector(0, 0, 0.13 * 25.4), App.Rotation())
sketch21.addGeometry(Part.Circle(App.Vector(-163.8, -40.4, 0), App.Vector(0, 0, 1), 3.2), False)
sketch21.addConstraint([
    Sketcher.Constraint("Diameter", 0, Q("0.25 in")),
    Sketcher.Constraint("DistanceX", 0, 3, -1, 1, Q("163.799211 mm")),
    Sketcher.Constraint("DistanceY", 0, 3, -1, 1, Q("40.363897 mm")),
])
sketch21.setExpression("Constraints[0]", "Params.sketch21_diameter")
pocket8 = doc.addObject("PartDesign::Pocket", "Pocket007")
body4.addObject(pocket8)
pocket8.Profile = sketch21
pocket8.setExpression("Length", "Params.pocket8_length")
body5 = doc.addObject("PartDesign::Body", "Body004")

# Sketch on XZ plane
sketch22 = doc.addObject("Sketcher::SketchObject", "Sketch021")
body5.addObject(sketch22)
sketch22.AttachmentSupport = (doc.getObject("XZ_Plane004"), [""])
sketch22.MapMode = "FlatFace"
sketch22.addGeometry(Part.Circle(App.Vector(56.8, 35.5, 0), App.Vector(0, 0, 1), 4.4), False)
sketch22.addConstraint([
    Sketcher.Constraint("Diameter", 0, Q("0.35 in")),
    Sketcher.Constraint("DistanceX", -1, 1, 0, 3, Q("56.808472 mm")),
    Sketcher.Constraint("DistanceY", -1, 1, 0, 3, Q("35.484426 mm")),
])
sketch22.setExpression("Constraints[0]", "Params.sketch22_diameter")
pad14 = doc.addObject("PartDesign::Pad", "Pad013")
body5.addObject(pad14)
pad14.Profile = sketch22
pad14.setExpression("Length", "Params.pad14_length")

# Sketch on XZ plane
sketch23 = doc.addObject("Sketcher::SketchObject", "Sketch022")
body5.addObject(sketch23)
sketch23.AttachmentSupport = (doc.getObject("XZ_Plane004"), [""])
sketch23.MapMode = "FlatFace"
sketch23.AttachmentOffset = App.Placement(App.Vector(0, 0, 0.125 * 25.4), App.Rotation())
sketch23.addGeometry(Part.Circle(App.Vector(56.8, 35.5, 0), App.Vector(0, 0, 1), 3.2), False)
sketch23.addConstraint([
    Sketcher.Constraint("Diameter", 0, Q("0.25 in")),
    Sketcher.Constraint("DistanceX", -1, 1, 0, 3, Q("56.808472 mm")),
    Sketcher.Constraint("DistanceY", -1, 1, 0, 3, Q("35.484426 mm")),
])
sketch23.setExpression("Constraints[0]", "Params.sketch23_diameter")
pad15 = doc.addObject("PartDesign::Pad", "Pad014")
body5.addObject(pad15)
pad15.Profile = sketch23
pad15.setExpression("Length", "Params.pad15_length")
body6 = doc.addObject("PartDesign::Body", "Body005")

# Sketch on YZ plane
sketch24 = doc.addObject("Sketcher::SketchObject", "Sketch023")
body6.addObject(sketch24)
sketch24.AttachmentSupport = (doc.getObject("YZ_Plane005"), [""])
sketch24.MapMode = "FlatFace"
sketch24.AttachmentOffset = App.Placement(App.Vector(0, 0, -111.849448), App.Rotation())
sketch24.addGeometry(Part.Circle(App.Vector(-13, 80, 0), App.Vector(0, 0, 1), 10), False)
sketch24.addConstraint([
    Sketcher.Constraint("Diameter", 0, Q("0.75 in")),
    Sketcher.Constraint("DistanceX", 0, 3, -1, 1, Q("0.5 in")),
    Sketcher.Constraint("DistanceY", -1, 1, 0, 3, Q("79.715756 mm")),
])
sketch24.setExpression("Constraints[0]", "Params.sketch24_diameter")
pad16 = doc.addObject("PartDesign::Pad", "Pad015")
body6.addObject(pad16)
pad16.Profile = sketch24
pad16.setExpression("Length", "Params.pad16_length")

# Sketch on YZ plane
sketch25 = doc.addObject("Sketcher::SketchObject", "Sketch024")
body6.addObject(sketch25)
sketch25.AttachmentSupport = (doc.getObject("YZ_Plane005"), [""])
sketch25.MapMode = "FlatFace"
sketch25.AttachmentOffset = App.Placement(App.Vector(0, 0, -73.749448), App.Rotation())
add_polygon(sketch25, [(-19, 86), (-19, 73), (-6, 73), (-6, 86)])  # lines 0-3
sketch25.addConstraint([
    Sketcher.Constraint("Vertical", 0),
    Sketcher.Constraint("Horizontal", 1),
    Sketcher.Constraint("Vertical", 2),
    Sketcher.Constraint("Horizontal", 3),
    Sketcher.Constraint("Equal", 3, 0),
    Sketcher.Constraint("DistanceX", 1, 1, 1, 2, Q("0.5 in")),
    Sketcher.Constraint("DistanceX", 0, 2, -1, 1, Q("0.75 in")),
    Sketcher.Constraint("DistanceY", -1, 1, 0, 2, Q("73.365756 mm")),
])
sketch25.setExpression("Constraints[9]", "Params.sketch25_width")
pad17 = doc.addObject("PartDesign::Pad", "Pad016")
body6.addObject(pad17)
pad17.Profile = sketch25
pad17.setExpression("Length", "Params.pad17_length")

# Sketch on XY plane
sketch26 = doc.addObject("Sketcher::SketchObject", "Sketch025")
body6.addObject(sketch26)
sketch26.AttachmentSupport = (doc.getObject("XY_Plane005"), [""])
sketch26.MapMode = "FlatFace"
sketch26.AttachmentOffset = App.Placement(App.Vector(0, 0, 86.065756), App.Rotation())
sketch26.addGeometry([
    Part.ArcOfCircle(Part.Circle(App.Vector(-67, -13, 0), App.Vector(0, 0, 1), 6), math.radians(-90), math.radians(0)),  # 0
    Part.ArcOfCircle(Part.Circle(App.Vector(-67, -13, 0), App.Vector(0, 0, 1), 6), math.radians(0), math.radians(90)),  # 1
    Part.LineSegment(App.Vector(-67, -6, 0), App.Vector(-74, -6, 0)),  # 2
    Part.LineSegment(App.Vector(-74, -6, 0), App.Vector(-74, -19, 0)),  # 3
    Part.LineSegment(App.Vector(-74, -19, 0), App.Vector(-67, -19, 0)),  # 4
], False)
sketch26.addConstraint([
    Sketcher.Constraint("Tangent", 0, 2, 1, 1),
    Sketcher.Constraint("Tangent", 1, 2, 2, 1),
    Sketcher.Constraint("Coincident", 2, 2, 3, 1),
    Sketcher.Constraint("Coincident", 3, 2, 4, 1),
    Sketcher.Constraint("Tangent", 4, 2, 0, 1),
    Sketcher.Constraint("Horizontal", 2),
    Sketcher.Constraint("Vertical", 3),
    Sketcher.Constraint("Horizontal", 4),
    Sketcher.Constraint("Equal", 0, 1),
    Sketcher.Constraint("Horizontal", 1, 3, 0, 2),
    Sketcher.Constraint("Radius", 0, Q("0.25 in")),
    Sketcher.Constraint("DistanceX", 2, 2, 2, 1, Q("0.25 in")),
    Sketcher.Constraint("DistanceY", 0, 3, -1, 1, Q("0.5 in")),
    Sketcher.Constraint("DistanceX", 0, 3, -1, 1, Q("67.399448 mm")),
])
sketch26.setExpression("Constraints[10]", "Params.sketch26_radius")
sketch26.setExpression("Constraints[11]", "Params.sketch26_width")
pad18 = doc.addObject("PartDesign::Pad", "Pad017")
body6.addObject(pad18)
pad18.Profile = sketch26
pad18.setExpression("Length", "Params.pad18_length")

doc.recompute()
